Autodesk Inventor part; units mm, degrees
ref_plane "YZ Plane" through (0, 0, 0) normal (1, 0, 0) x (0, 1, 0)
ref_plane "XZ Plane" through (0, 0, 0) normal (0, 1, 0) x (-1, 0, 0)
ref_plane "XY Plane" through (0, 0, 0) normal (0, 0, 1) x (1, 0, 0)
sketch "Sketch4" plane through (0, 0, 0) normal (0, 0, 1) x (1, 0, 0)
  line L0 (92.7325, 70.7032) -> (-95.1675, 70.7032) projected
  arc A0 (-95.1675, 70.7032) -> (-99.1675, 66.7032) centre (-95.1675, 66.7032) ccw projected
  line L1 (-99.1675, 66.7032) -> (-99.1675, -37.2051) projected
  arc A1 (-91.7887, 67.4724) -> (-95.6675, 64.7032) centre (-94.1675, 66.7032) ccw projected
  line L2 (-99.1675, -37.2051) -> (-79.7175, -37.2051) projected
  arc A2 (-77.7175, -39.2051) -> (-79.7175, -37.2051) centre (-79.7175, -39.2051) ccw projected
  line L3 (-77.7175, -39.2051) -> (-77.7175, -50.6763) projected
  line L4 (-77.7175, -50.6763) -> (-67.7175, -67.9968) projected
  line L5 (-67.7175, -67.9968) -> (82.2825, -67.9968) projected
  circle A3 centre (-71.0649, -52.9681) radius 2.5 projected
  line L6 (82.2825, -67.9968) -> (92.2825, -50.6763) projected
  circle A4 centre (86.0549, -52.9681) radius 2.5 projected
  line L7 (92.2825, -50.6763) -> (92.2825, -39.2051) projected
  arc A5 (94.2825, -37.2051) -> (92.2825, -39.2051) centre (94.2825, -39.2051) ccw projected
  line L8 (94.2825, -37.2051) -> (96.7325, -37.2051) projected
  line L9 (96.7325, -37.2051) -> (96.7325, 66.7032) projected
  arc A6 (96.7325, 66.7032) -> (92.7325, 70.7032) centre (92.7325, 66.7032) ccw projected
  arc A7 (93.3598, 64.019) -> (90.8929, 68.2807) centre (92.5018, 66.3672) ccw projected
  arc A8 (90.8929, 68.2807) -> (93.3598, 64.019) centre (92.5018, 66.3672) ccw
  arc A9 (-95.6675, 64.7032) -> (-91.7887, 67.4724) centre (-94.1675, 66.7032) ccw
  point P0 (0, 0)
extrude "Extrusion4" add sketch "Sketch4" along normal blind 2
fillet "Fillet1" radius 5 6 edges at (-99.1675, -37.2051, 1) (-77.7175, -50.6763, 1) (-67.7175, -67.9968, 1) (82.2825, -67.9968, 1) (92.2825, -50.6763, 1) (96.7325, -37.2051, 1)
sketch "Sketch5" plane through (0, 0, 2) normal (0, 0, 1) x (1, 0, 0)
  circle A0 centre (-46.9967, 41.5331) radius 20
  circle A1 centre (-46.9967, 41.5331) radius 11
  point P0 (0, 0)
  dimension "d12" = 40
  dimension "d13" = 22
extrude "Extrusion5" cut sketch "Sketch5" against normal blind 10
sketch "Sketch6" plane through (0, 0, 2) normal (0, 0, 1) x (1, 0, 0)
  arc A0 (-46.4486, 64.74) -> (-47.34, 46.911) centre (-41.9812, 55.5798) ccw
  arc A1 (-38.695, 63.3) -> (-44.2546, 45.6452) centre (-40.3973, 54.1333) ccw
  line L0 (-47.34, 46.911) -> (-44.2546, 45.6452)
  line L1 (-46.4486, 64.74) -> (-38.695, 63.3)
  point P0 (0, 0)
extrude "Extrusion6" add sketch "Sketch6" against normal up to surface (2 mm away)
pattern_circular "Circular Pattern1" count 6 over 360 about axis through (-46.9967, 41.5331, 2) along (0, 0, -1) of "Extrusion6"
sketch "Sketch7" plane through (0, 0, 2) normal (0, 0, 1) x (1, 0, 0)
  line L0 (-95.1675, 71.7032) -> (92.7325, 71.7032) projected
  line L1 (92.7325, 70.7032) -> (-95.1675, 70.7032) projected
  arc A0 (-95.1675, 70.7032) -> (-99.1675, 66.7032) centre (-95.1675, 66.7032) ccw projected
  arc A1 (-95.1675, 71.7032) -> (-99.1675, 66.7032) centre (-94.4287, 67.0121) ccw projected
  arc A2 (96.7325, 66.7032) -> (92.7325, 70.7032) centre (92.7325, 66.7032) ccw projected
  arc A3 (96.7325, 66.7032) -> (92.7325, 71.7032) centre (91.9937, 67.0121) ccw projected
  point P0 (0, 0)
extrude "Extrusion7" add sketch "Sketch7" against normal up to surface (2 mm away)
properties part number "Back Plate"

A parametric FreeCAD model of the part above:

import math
import FreeCAD as App
import Part
import Sketcher
Q = App.Units.Quantity


def edges_at(feature, points):
    """Names of the edges that pass closest to the given points."""
    edges = feature.Shape.Edges
    near = lambda p: min(range(len(edges)), key=lambda i: edges[i].distToShape(Part.Vertex(*p))[0])
    return sorted({f"Edge{near(p) + 1}" for p in points})

doc = App.newDocument("Part")
body = doc.addObject("PartDesign::Body", "Body")
body.AllowCompound = True

# Sketch on XY plane
sketch1 = doc.addObject("Sketcher::SketchObject", "Sketch")
body.addObject(sketch1)
sketch1.AttachmentSupport = (doc.XY_Plane, [""])
sketch1.MapMode = "FlatFace"
sketch1.addGeometry([
    Part.ArcOfCircle(Part.Circle(App.Vector(92.7, 66.7, 0), App.Vector(0, 0, 1), 4), math.radians(0), math.radians(90)),  # 0
    Part.LineSegment(App.Vector(92.7, 70.7, 0), App.Vector(-95.2, 70.7, 0)),  # 1
    Part.ArcOfCircle(Part.Circle(App.Vector(-95.2, 66.7, 0), App.Vector(0, 0, 1), 4), math.radians(90), math.radians(180)),  # 2
    Part.LineSegment(App.Vector(-99.2, 66.7, 0), App.Vector(-99.2, -37.2, 0)),  # 3
    Part.LineSegment(App.Vector(-99.2, -37.2, 0), App.Vector(-79.7, -37.2, 0)),  # 4
    Part.ArcOfCircle(Part.Circle(App.Vector(-79.7, -39.2, 0), App.Vector(0, 0, 1), 2), math.radians(0), math.radians(90)),  # 5
    Part.LineSegment(App.Vector(-77.7, -39.2, 0), App.Vector(-77.7, -50.7, 0)),  # 6
    Part.LineSegment(App.Vector(-77.7, -50.7, 0), App.Vector(-67.7, -68, 0)),  # 7
    Part.LineSegment(App.Vector(-67.7, -68, 0), App.Vector(82.3, -68, 0)),  # 8
    Part.LineSegment(App.Vector(82.3, -68, 0), App.Vector(92.3, -50.7, 0)),  # 9
    Part.LineSegment(App.Vector(92.3, -50.7, 0), App.Vector(92.3, -39.2, 0)),  # 10
    Part.ArcOfCircle(Part.Circle(App.Vector(94.3, -39.2, 0), App.Vector(0, 0, 1), 2), math.radians(90), math.radians(180)),  # 11
    Part.LineSegment(App.Vector(94.3, -37.2, 0), App.Vector(96.7, -37.2, 0)),  # 12
    Part.LineSegment(App.Vector(96.7, -37.2, 0), App.Vector(96.7, 66.7, 0)),  # 13
    Part.Circle(App.Vector(-71.1, -53, 0), App.Vector(0, 0, 1), 2.5),  # 14
    Part.Circle(App.Vector(86.1, -53, 0), App.Vector(0, 0, 1), 2.5),  # 15
    Part.ArcOfCircle(Part.Circle(App.Vector(-94.2, 66.7, 0), App.Vector(0, 0, 1), 2.5), math.radians(18), math.radians(233)),  # 16
    Part.ArcOfCircle(Part.Circle(App.Vector(-94.2, 66.7, 0), App.Vector(0, 0, 1), 2.5), math.radians(-127), math.radians(18)),  # 17
    Part.ArcOfCircle(Part.Circle(App.Vector(92.5, 66.4, 0), App.Vector(0, 0, 1), 2.5), math.radians(-70), math.radians(130)),  # 18
    Part.ArcOfCircle(Part.Circle(App.Vector(92.5, 66.4, 0), App.Vector(0, 0, 1), 2.5), math.radians(130), math.radians(290)),  # 19
], False)
sketch1.addConstraint([
    Sketcher.Constraint("Tangent", 0, 2, 1, 1),
    Sketcher.Constraint("Tangent", 1, 2, 2, 1),
    Sketcher.Constraint("Tangent", 2, 2, 3, 1),
    Sketcher.Constraint("Coincident", 3, 2, 4, 1),
    Sketcher.Constraint("Tangent", 4, 2, 5, 2),
    Sketcher.Constraint("Tangent", 5, 1, 6, 1),
    Sketcher.Constraint("Coincident", 6, 2, 7, 1),
    Sketcher.Constraint("Coincident", 7, 2, 8, 1),
    Sketcher.Constraint("Coincident", 8, 2, 9, 1),
    Sketcher.Constraint("Coincident", 9, 2, 10, 1),
    Sketcher.Constraint("Tangent", 10, 2, 11, 2),
    Sketcher.Constraint("Tangent", 11, 1, 12, 1),
    Sketcher.Constraint("Coincident", 12, 2, 13, 1),
    Sketcher.Constraint("Tangent", 13, 2, 0, 1),
    Sketcher.Constraint("Tangent", 16, 1, 17, 2),
    Sketcher.Constraint("Coincident", 17, 1, 16, 2),
    Sketcher.Constraint("Tangent", 18, 1, 19, 2),
    Sketcher.Constraint("Coincident", 19, 1, 18, 2),
    Sketcher.Constraint("Horizontal", 1),
    Sketcher.Constraint("Vertical", 3),
    Sketcher.Constraint("Horizontal", 4),
    Sketcher.Constraint("Vertical", 6),
    Sketcher.Constraint("Horizontal", 8),
    Sketcher.Constraint("Vertical", 10),
    Sketcher.Constraint("Horizontal", 12),
    Sketcher.Constraint("Vertical", 13),
    Sketcher.Constraint("Equal", 0, 2),
    Sketcher.Constraint("Equal", 5, 11),
    Sketcher.Constraint("Equal", 14, 15),
    Sketcher.Constraint("Equal", 15, 16),
    Sketcher.Constraint("Equal", 17, 18),
    Sketcher.Constraint("Horizontal", 5, 3, 11, 3),
    Sketcher.Constraint("Horizontal", 14, 3, 15, 3),
    Sketcher.Constraint("Horizontal", 2, 3, 16, 3),
    Sketcher.Constraint("Horizontal", 6, 2, 9, 2),
    Sketcher.Constraint("Equal", 7, 9),
    Sketcher.Constraint("Diameter", 14, Q("5 mm")),
    Sketcher.Constraint("Radius", 0, Q("4 mm")),
    Sketcher.Constraint("Radius", 5, Q("2 mm")),
    Sketcher.Constraint("DistanceX", 8, 1, 8, 2, Q("150 mm")),
    Sketcher.Constraint("Angle", 7, Q("-60 deg")),
    Sketcher.Constraint("Distance", 7, Q("20 mm")),
    Sketcher.Constraint("DistanceX", 1, 2, 1, 1, Q("187.9 mm")),
    Sketcher.Constraint("DistanceX", 2, 3, 16, 3, Q("1 mm")),
    Sketcher.Constraint("DistanceY", 17, 1, 2, 3, Q("2 mm")),
    Sketcher.Constraint("DistanceX", 4, 1, 4, 2, Q("19.45 mm")),
    Sketcher.Constraint("DistanceY", 8, 2, 0, 3, Q("134.7 mm")),
    Sketcher.Constraint("DistanceY", 3, 2, 3, 1, Q("103.9083 mm")),
    Sketcher.Constraint("DistanceY", 5, 3, -1, 1, Q("39.205 mm")),
    Sketcher.Constraint("DistanceX", 14, 3, -1, 1, Q("71.065 mm")),
    Sketcher.Constraint("DistanceY", 14, 3, -1, 1, Q("52.968 mm")),
    Sketcher.Constraint("DistanceX", -1, 1, 15, 3, Q("86.055 mm")),
    Sketcher.Constraint("DistanceY", -1, 1, 18, 1, Q("64.019 mm")),
    Sketcher.Constraint("DistanceY", 18, 3, 0, 3, Q("0.336 mm")),
    Sketcher.Constraint("DistanceX", 15, 3, 18, 3, Q("6.447 mm")),
    Sketcher.Constraint("DistanceX", 19, 1, 18, 3, Q("1.609 mm")),
    Sketcher.Constraint("DistanceX", -1, 1, 0, 3, Q("92.7325 mm")),
    Sketcher.Constraint("DistanceX", 16, 1, -1, 1, Q("91.7887 mm")),
])
pad1 = doc.addObject("PartDesign::Pad", "Pad")
body.addObject(pad1)
pad1.Profile = sketch1
pad1.Length = 2
doc.recompute()

fillet = doc.addObject("PartDesign::Fillet", "Fillet")
body.addObject(fillet)
fillet.Base = (pad1, edges_at(pad1, [
    (-99.168, -37.205, 1),
    (-77.718, -50.676, 1),
    (-67.718, -67.997, 1),
    (82.282, -67.997, 1),
    (92.282, -50.676, 1),
    (96.733, -37.205, 1),
]))
fillet.Radius = 5

# Sketch on XY plane
sketch2 = doc.addObject("Sketcher::SketchObject", "Sketch001")
body.addObject(sketch2)
sketch2.AttachmentSupport = (doc.XY_Plane, [""])
sketch2.MapMode = "FlatFace"
sketch2.AttachmentOffset = App.Placement(App.Vector(0, 0, 2), App.Rotation())
sketch2.addGeometry([
    Part.Circle(App.Vector(-47, 42, 0), App.Vector(0, 0, 1), 20),
    Part.Circle(App.Vector(-47, 42, 0), App.Vector(0, 0, 1), 11),
], False)
sketch2.addConstraint([
    Sketcher.Constraint("Coincident", 1, 3, 0, 3),
    Sketcher.Constraint("Diameter", 0, Q("40 mm")),
    Sketcher.Constraint("Diameter", 1, Q("22 mm")),
    Sketcher.Constraint("DistanceY", -1, 1, 0, 3, Q("41.533 mm")),
    Sketcher.Constraint("DistanceX", 0, 3, -1, 1, Q("46.9967 mm")),
])
pocket1 = doc.addObject("PartDesign::Pocket", "Pocket")
body.addObject(pocket1)
pocket1.Profile = sketch2
pocket1.Length = 10

# Sketch on XY plane
sketch3 = doc.addObject("Sketcher::SketchObject", "Sketch002")
body.addObject(sketch3)
sketch3.AttachmentSupport = (doc.XY_Plane, [""])
sketch3.MapMode = "FlatFace"
sketch3.AttachmentOffset = App.Placement(App.Vector(0, 0, 2), App.Rotation())
sketch3.addGeometry([
    Part.LineSegment(App.Vector(-38.7, 63.3, 0), App.Vector(-46.4, 64.7, 0)),
    Part.ArcOfCircle(Part.Circle(App.Vector(-42, 55.6, 0), App.Vector(0, 0, 1), 10.2), math.radians(116), math.radians(238)),
    Part.LineSegment(App.Vector(-47.3, 46.9, 0), App.Vector(-44.3, 45.6, 0)),
    Part.ArcOfCircle(Part.Circle(App.Vector(-40.4, 54.1, 0), App.Vector(0, 0, 1), 9.3), math.radians(79), math.radians(246)),
], False)
sketch3.addConstraint([
    Sketcher.Constraint("Coincident", 0, 2, 1, 1),
    Sketcher.Constraint("Coincident", 1, 2, 2, 1),
    Sketcher.Constraint("Coincident", 2, 2, 3, 2),
    Sketcher.Constraint("Tangent", 3, 1, 0, 1),
    Sketcher.Constraint("DistanceY", -1, 1, 3, 1, Q("63.3 mm")),
    Sketcher.Constraint("Angle", 0, Q("169.479 deg")),
    Sketcher.Constraint("Radius", 1, Q("10.1915 mm")),
    Sketcher.Constraint("Radius", 3, Q("9.3234 mm")),
    Sketcher.Constraint("DistanceY", -1, 1, 0, 2, Q("64.74 mm")),
    Sketcher.Constraint("DistanceX", 1, 2, -1, 1, Q("47.34 mm")),
    Sketcher.Constraint("Distance", 2, Q("3.335 mm")),
    Sketcher.Constraint("DistanceY", -1, 1, 1, 2, Q("46.911 mm")),
    Sketcher.Constraint("DistanceX", 3, 1, -1, 1, Q("38.695 mm")),
])
pad2 = doc.addObject("PartDesign::Pad", "Pad001")
body.addObject(pad2)
pad2.Profile = sketch3
pad2.Length = 2
pad2.Reversed = True
doc.recompute()

datumline = doc.addObject("PartDesign::Line", "DatumLine")
body.addObject(datumline)
datumline.Placement = App.Placement(App.Vector(-46.9967, 41.5331, 0), App.Rotation(App.Vector(0, 0, 1), App.Vector(0, 0, 1)))
polarpattern = doc.addObject("PartDesign::PolarPattern", "PolarPattern")
body.addObject(polarpattern)
polarpattern.Originals = [pad2]
polarpattern.Axis = (datumline, [""])
polarpattern.Angle = 360
polarpattern.Occurrences = 6
body.Tip = polarpattern

# Sketch on XY plane
sketch4 = doc.addObject("Sketcher::SketchObject", "Sketch003")
body.addObject(sketch4)
sketch4.AttachmentSupport = (doc.XY_Plane, [""])
sketch4.MapMode = "FlatFace"
sketch4.AttachmentOffset = App.Placement(App.Vector(0, 0, 2), App.Rotation())
sketch4.addGeometry([
    Part.LineSegment(App.Vector(92.7, 71.7, 0), App.Vector(-95.2, 71.7, 0)),  # 0
    Part.ArcOfCircle(Part.Circle(App.Vector(-94.4, 67, 0), App.Vector(0, 0, 1), 4.7), math.radians(99), math.radians(184)),  # 1
    Part.ArcOfCircle(Part.Circle(App.Vector(-95.2, 66.7, 0), App.Vector(0, 0, 1), 4), math.radians(90), math.radians(180)),  # 2
    Part.LineSegment(App.Vector(-95.2, 70.7, 0), App.Vector(92.7, 70.7, 0)),  # 3
    Part.ArcOfCircle(Part.Circle(App.Vector(92.7, 66.7, 0), App.Vector(0, 0, 1), 4), math.radians(0), math.radians(90)),  # 4
    Part.ArcOfCircle(Part.Circle(App.Vector(92, 67, 0), App.Vector(0, 0, 1), 4.7), math.radians(-4), math.radians(81)),  # 5
], False)
sketch4.addConstraint([
    Sketcher.Constraint("Coincident", 0, 2, 1, 1),
    Sketcher.Constraint("Coincident", 1, 2, 2, 2),
    Sketcher.Constraint("Tangent", 2, 1, 3, 1),
    Sketcher.Constraint("Tangent", 3, 2, 4, 2),
    Sketcher.Constraint("Coincident", 4, 1, 5, 1),
    Sketcher.Constraint("Coincident", 5, 2, 0, 1),
    Sketcher.Constraint("Horizontal", 0),
    Sketcher.Constraint("Horizontal", 3),
    Sketcher.Constraint("Equal", 2, 4),
    Sketcher.Constraint("Equal", 1, 5),
    Sketcher.Constraint("Horizontal", 1, 3, 5, 3),
    Sketcher.Constraint("Horizontal", 4, 3, 1, 2),
    Sketcher.Constraint("Horizontal", 1, 2, 4, 1),
    Sketcher.Constraint("Vertical", 2, 3, 0, 2),
    Sketcher.Constraint("Radius", 2, Q("4 mm")),
    Sketcher.Constraint("DistanceX", 0, 2, 0, 1, Q("187.9 mm")),
    Sketcher.Constraint("Radius", 1, Q("4.749 mm")),
    Sketcher.Constraint("DistanceY", 2, 3, 0, 2, Q("5 mm")),
    Sketcher.Constraint("DistanceY", -1, 1, 1, 3, Q("67.012 mm")),
    Sketcher.Constraint("DistanceX", 1, 3, -1, 1, Q("94.4287 mm")),
])
pad3 = doc.addObject("PartDesign::Pad", "Pad002")
body.addObject(pad3)
pad3.Profile = sketch4
pad3.Length = 2
pad3.Reversed = True

doc.recompute()
